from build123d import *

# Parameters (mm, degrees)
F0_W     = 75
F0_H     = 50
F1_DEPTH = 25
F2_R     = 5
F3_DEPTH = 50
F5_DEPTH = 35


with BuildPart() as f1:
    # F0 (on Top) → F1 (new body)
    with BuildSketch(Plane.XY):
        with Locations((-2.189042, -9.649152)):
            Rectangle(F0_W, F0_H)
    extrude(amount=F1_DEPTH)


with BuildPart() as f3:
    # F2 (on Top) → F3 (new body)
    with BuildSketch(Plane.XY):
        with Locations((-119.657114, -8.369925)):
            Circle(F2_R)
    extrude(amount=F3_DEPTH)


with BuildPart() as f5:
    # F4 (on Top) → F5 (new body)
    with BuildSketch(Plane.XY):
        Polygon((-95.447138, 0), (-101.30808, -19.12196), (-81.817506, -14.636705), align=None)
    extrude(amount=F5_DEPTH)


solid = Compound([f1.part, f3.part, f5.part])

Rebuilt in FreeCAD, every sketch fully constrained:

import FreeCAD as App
import Part
import Sketcher
Q = App.Units.Quantity


def add_polygon(sketch, points):
    """Adds a closed chain of lines whose ends are joined by coincident constraints."""
    first, n = sketch.GeometryCount, len(points)
    for a, b in zip(points, points[1:] + points[:1]):
        sketch.addGeometry(Part.LineSegment(App.Vector(*a, 0), App.Vector(*b, 0)), False)
    for i in range(n):
        sketch.addConstraint(Sketcher.Constraint("Coincident", first + i, 2, first + (i + 1) % n, 1))

doc = App.newDocument("Part")
body = doc.addObject("PartDesign::Body", "Body")

sketch1 = body.newObject("Sketcher::SketchObject", "Sketch")
sketch1.AttachmentSupport = (doc.getObject("XY_Plane"), [""])
sketch1.MapMode = "FlatFace"
add_polygon(sketch1, [(-40, 15), (-40, -35), (35, -35), (35, 15)])
sketch1.addConstraint(Sketcher.Constraint("Vertical", 0))
sketch1.addConstraint(Sketcher.Constraint("Horizontal", 1))
sketch1.addConstraint(Sketcher.Constraint("Vertical", 2))
sketch1.addConstraint(Sketcher.Constraint("Horizontal", 3))
sketch1.addConstraint(Sketcher.Constraint("DistanceX", 1, 1, 1, 2, Q("75 mm")))
sketch1.addConstraint(Sketcher.Constraint("DistanceY", 0, 2, 0, 1, Q("50 mm")))
sketch1.addConstraint(Sketcher.Constraint("DistanceX", 0, 2, -1, 1, Q("39.689042 mm")))
sketch1.addConstraint(Sketcher.Constraint("DistanceY", 0, 2, -1, 1, Q("34.649152 mm")))
pad1 = body.newObject("PartDesign::Pad", "Pad")
pad1.Profile = sketch1
pad1.Length = 25
body2 = doc.addObject("PartDesign::Body", "Body001")

sketch2 = body2.newObject("Sketcher::SketchObject", "Sketch001")
sketch2.AttachmentSupport = (doc.getObject("XY_Plane001"), [""])
sketch2.MapMode = "FlatFace"
sketch2.addGeometry(Part.Circle(App.Vector(-120, -8, 0), App.Vector(0, 0, 1), 5), False)
sketch2.addConstraint(Sketcher.Constraint("Diameter", 0, Q("10 mm")))
sketch2.addConstraint(Sketcher.Constraint("DistanceX", 0, 3, -1, 1, Q("119.657114 mm")))
sketch2.addConstraint(Sketcher.Constraint("DistanceY", 0, 3, -1, 1, Q("8.369925 mm")))
pad2 = body2.newObject("PartDesign::Pad", "Pad001")
pad2.Profile = sketch2
pad2.Length = 50
body3 = doc.addObject("PartDesign::Body", "Body002")

sketch3 = body3.newObject("Sketcher::SketchObject", "Sketch002")
sketch3.AttachmentSupport = (doc.getObject("XY_Plane002"), [""])
sketch3.MapMode = "FlatFace"
add_polygon(sketch3, [(-95, 0), (-101, -19), (-82, -15)])
sketch3.addConstraint(Sketcher.Constraint("PointOnObject", 2, 2, -1))
sketch3.addConstraint(Sketcher.Constraint("Equal", 0, 1))
sketch3.addConstraint(Sketcher.Constraint("Equal", 1, 2))
sketch3.addConstraint(Sketcher.Constraint("Distance", 0, Q("20 mm")))
sketch3.addConstraint(Sketcher.Constraint("DistanceX", 0, 2, -1, 1, Q("101.30808 mm")))
sketch3.addConstraint(Sketcher.Constraint("DistanceY", 0, 2, -1, 1, Q("19.12196 mm")))
pad3 = body3.newObject("PartDesign::Pad", "Pad002")
pad3.Profile = sketch3
pad3.Length = 35

doc.recompute()
